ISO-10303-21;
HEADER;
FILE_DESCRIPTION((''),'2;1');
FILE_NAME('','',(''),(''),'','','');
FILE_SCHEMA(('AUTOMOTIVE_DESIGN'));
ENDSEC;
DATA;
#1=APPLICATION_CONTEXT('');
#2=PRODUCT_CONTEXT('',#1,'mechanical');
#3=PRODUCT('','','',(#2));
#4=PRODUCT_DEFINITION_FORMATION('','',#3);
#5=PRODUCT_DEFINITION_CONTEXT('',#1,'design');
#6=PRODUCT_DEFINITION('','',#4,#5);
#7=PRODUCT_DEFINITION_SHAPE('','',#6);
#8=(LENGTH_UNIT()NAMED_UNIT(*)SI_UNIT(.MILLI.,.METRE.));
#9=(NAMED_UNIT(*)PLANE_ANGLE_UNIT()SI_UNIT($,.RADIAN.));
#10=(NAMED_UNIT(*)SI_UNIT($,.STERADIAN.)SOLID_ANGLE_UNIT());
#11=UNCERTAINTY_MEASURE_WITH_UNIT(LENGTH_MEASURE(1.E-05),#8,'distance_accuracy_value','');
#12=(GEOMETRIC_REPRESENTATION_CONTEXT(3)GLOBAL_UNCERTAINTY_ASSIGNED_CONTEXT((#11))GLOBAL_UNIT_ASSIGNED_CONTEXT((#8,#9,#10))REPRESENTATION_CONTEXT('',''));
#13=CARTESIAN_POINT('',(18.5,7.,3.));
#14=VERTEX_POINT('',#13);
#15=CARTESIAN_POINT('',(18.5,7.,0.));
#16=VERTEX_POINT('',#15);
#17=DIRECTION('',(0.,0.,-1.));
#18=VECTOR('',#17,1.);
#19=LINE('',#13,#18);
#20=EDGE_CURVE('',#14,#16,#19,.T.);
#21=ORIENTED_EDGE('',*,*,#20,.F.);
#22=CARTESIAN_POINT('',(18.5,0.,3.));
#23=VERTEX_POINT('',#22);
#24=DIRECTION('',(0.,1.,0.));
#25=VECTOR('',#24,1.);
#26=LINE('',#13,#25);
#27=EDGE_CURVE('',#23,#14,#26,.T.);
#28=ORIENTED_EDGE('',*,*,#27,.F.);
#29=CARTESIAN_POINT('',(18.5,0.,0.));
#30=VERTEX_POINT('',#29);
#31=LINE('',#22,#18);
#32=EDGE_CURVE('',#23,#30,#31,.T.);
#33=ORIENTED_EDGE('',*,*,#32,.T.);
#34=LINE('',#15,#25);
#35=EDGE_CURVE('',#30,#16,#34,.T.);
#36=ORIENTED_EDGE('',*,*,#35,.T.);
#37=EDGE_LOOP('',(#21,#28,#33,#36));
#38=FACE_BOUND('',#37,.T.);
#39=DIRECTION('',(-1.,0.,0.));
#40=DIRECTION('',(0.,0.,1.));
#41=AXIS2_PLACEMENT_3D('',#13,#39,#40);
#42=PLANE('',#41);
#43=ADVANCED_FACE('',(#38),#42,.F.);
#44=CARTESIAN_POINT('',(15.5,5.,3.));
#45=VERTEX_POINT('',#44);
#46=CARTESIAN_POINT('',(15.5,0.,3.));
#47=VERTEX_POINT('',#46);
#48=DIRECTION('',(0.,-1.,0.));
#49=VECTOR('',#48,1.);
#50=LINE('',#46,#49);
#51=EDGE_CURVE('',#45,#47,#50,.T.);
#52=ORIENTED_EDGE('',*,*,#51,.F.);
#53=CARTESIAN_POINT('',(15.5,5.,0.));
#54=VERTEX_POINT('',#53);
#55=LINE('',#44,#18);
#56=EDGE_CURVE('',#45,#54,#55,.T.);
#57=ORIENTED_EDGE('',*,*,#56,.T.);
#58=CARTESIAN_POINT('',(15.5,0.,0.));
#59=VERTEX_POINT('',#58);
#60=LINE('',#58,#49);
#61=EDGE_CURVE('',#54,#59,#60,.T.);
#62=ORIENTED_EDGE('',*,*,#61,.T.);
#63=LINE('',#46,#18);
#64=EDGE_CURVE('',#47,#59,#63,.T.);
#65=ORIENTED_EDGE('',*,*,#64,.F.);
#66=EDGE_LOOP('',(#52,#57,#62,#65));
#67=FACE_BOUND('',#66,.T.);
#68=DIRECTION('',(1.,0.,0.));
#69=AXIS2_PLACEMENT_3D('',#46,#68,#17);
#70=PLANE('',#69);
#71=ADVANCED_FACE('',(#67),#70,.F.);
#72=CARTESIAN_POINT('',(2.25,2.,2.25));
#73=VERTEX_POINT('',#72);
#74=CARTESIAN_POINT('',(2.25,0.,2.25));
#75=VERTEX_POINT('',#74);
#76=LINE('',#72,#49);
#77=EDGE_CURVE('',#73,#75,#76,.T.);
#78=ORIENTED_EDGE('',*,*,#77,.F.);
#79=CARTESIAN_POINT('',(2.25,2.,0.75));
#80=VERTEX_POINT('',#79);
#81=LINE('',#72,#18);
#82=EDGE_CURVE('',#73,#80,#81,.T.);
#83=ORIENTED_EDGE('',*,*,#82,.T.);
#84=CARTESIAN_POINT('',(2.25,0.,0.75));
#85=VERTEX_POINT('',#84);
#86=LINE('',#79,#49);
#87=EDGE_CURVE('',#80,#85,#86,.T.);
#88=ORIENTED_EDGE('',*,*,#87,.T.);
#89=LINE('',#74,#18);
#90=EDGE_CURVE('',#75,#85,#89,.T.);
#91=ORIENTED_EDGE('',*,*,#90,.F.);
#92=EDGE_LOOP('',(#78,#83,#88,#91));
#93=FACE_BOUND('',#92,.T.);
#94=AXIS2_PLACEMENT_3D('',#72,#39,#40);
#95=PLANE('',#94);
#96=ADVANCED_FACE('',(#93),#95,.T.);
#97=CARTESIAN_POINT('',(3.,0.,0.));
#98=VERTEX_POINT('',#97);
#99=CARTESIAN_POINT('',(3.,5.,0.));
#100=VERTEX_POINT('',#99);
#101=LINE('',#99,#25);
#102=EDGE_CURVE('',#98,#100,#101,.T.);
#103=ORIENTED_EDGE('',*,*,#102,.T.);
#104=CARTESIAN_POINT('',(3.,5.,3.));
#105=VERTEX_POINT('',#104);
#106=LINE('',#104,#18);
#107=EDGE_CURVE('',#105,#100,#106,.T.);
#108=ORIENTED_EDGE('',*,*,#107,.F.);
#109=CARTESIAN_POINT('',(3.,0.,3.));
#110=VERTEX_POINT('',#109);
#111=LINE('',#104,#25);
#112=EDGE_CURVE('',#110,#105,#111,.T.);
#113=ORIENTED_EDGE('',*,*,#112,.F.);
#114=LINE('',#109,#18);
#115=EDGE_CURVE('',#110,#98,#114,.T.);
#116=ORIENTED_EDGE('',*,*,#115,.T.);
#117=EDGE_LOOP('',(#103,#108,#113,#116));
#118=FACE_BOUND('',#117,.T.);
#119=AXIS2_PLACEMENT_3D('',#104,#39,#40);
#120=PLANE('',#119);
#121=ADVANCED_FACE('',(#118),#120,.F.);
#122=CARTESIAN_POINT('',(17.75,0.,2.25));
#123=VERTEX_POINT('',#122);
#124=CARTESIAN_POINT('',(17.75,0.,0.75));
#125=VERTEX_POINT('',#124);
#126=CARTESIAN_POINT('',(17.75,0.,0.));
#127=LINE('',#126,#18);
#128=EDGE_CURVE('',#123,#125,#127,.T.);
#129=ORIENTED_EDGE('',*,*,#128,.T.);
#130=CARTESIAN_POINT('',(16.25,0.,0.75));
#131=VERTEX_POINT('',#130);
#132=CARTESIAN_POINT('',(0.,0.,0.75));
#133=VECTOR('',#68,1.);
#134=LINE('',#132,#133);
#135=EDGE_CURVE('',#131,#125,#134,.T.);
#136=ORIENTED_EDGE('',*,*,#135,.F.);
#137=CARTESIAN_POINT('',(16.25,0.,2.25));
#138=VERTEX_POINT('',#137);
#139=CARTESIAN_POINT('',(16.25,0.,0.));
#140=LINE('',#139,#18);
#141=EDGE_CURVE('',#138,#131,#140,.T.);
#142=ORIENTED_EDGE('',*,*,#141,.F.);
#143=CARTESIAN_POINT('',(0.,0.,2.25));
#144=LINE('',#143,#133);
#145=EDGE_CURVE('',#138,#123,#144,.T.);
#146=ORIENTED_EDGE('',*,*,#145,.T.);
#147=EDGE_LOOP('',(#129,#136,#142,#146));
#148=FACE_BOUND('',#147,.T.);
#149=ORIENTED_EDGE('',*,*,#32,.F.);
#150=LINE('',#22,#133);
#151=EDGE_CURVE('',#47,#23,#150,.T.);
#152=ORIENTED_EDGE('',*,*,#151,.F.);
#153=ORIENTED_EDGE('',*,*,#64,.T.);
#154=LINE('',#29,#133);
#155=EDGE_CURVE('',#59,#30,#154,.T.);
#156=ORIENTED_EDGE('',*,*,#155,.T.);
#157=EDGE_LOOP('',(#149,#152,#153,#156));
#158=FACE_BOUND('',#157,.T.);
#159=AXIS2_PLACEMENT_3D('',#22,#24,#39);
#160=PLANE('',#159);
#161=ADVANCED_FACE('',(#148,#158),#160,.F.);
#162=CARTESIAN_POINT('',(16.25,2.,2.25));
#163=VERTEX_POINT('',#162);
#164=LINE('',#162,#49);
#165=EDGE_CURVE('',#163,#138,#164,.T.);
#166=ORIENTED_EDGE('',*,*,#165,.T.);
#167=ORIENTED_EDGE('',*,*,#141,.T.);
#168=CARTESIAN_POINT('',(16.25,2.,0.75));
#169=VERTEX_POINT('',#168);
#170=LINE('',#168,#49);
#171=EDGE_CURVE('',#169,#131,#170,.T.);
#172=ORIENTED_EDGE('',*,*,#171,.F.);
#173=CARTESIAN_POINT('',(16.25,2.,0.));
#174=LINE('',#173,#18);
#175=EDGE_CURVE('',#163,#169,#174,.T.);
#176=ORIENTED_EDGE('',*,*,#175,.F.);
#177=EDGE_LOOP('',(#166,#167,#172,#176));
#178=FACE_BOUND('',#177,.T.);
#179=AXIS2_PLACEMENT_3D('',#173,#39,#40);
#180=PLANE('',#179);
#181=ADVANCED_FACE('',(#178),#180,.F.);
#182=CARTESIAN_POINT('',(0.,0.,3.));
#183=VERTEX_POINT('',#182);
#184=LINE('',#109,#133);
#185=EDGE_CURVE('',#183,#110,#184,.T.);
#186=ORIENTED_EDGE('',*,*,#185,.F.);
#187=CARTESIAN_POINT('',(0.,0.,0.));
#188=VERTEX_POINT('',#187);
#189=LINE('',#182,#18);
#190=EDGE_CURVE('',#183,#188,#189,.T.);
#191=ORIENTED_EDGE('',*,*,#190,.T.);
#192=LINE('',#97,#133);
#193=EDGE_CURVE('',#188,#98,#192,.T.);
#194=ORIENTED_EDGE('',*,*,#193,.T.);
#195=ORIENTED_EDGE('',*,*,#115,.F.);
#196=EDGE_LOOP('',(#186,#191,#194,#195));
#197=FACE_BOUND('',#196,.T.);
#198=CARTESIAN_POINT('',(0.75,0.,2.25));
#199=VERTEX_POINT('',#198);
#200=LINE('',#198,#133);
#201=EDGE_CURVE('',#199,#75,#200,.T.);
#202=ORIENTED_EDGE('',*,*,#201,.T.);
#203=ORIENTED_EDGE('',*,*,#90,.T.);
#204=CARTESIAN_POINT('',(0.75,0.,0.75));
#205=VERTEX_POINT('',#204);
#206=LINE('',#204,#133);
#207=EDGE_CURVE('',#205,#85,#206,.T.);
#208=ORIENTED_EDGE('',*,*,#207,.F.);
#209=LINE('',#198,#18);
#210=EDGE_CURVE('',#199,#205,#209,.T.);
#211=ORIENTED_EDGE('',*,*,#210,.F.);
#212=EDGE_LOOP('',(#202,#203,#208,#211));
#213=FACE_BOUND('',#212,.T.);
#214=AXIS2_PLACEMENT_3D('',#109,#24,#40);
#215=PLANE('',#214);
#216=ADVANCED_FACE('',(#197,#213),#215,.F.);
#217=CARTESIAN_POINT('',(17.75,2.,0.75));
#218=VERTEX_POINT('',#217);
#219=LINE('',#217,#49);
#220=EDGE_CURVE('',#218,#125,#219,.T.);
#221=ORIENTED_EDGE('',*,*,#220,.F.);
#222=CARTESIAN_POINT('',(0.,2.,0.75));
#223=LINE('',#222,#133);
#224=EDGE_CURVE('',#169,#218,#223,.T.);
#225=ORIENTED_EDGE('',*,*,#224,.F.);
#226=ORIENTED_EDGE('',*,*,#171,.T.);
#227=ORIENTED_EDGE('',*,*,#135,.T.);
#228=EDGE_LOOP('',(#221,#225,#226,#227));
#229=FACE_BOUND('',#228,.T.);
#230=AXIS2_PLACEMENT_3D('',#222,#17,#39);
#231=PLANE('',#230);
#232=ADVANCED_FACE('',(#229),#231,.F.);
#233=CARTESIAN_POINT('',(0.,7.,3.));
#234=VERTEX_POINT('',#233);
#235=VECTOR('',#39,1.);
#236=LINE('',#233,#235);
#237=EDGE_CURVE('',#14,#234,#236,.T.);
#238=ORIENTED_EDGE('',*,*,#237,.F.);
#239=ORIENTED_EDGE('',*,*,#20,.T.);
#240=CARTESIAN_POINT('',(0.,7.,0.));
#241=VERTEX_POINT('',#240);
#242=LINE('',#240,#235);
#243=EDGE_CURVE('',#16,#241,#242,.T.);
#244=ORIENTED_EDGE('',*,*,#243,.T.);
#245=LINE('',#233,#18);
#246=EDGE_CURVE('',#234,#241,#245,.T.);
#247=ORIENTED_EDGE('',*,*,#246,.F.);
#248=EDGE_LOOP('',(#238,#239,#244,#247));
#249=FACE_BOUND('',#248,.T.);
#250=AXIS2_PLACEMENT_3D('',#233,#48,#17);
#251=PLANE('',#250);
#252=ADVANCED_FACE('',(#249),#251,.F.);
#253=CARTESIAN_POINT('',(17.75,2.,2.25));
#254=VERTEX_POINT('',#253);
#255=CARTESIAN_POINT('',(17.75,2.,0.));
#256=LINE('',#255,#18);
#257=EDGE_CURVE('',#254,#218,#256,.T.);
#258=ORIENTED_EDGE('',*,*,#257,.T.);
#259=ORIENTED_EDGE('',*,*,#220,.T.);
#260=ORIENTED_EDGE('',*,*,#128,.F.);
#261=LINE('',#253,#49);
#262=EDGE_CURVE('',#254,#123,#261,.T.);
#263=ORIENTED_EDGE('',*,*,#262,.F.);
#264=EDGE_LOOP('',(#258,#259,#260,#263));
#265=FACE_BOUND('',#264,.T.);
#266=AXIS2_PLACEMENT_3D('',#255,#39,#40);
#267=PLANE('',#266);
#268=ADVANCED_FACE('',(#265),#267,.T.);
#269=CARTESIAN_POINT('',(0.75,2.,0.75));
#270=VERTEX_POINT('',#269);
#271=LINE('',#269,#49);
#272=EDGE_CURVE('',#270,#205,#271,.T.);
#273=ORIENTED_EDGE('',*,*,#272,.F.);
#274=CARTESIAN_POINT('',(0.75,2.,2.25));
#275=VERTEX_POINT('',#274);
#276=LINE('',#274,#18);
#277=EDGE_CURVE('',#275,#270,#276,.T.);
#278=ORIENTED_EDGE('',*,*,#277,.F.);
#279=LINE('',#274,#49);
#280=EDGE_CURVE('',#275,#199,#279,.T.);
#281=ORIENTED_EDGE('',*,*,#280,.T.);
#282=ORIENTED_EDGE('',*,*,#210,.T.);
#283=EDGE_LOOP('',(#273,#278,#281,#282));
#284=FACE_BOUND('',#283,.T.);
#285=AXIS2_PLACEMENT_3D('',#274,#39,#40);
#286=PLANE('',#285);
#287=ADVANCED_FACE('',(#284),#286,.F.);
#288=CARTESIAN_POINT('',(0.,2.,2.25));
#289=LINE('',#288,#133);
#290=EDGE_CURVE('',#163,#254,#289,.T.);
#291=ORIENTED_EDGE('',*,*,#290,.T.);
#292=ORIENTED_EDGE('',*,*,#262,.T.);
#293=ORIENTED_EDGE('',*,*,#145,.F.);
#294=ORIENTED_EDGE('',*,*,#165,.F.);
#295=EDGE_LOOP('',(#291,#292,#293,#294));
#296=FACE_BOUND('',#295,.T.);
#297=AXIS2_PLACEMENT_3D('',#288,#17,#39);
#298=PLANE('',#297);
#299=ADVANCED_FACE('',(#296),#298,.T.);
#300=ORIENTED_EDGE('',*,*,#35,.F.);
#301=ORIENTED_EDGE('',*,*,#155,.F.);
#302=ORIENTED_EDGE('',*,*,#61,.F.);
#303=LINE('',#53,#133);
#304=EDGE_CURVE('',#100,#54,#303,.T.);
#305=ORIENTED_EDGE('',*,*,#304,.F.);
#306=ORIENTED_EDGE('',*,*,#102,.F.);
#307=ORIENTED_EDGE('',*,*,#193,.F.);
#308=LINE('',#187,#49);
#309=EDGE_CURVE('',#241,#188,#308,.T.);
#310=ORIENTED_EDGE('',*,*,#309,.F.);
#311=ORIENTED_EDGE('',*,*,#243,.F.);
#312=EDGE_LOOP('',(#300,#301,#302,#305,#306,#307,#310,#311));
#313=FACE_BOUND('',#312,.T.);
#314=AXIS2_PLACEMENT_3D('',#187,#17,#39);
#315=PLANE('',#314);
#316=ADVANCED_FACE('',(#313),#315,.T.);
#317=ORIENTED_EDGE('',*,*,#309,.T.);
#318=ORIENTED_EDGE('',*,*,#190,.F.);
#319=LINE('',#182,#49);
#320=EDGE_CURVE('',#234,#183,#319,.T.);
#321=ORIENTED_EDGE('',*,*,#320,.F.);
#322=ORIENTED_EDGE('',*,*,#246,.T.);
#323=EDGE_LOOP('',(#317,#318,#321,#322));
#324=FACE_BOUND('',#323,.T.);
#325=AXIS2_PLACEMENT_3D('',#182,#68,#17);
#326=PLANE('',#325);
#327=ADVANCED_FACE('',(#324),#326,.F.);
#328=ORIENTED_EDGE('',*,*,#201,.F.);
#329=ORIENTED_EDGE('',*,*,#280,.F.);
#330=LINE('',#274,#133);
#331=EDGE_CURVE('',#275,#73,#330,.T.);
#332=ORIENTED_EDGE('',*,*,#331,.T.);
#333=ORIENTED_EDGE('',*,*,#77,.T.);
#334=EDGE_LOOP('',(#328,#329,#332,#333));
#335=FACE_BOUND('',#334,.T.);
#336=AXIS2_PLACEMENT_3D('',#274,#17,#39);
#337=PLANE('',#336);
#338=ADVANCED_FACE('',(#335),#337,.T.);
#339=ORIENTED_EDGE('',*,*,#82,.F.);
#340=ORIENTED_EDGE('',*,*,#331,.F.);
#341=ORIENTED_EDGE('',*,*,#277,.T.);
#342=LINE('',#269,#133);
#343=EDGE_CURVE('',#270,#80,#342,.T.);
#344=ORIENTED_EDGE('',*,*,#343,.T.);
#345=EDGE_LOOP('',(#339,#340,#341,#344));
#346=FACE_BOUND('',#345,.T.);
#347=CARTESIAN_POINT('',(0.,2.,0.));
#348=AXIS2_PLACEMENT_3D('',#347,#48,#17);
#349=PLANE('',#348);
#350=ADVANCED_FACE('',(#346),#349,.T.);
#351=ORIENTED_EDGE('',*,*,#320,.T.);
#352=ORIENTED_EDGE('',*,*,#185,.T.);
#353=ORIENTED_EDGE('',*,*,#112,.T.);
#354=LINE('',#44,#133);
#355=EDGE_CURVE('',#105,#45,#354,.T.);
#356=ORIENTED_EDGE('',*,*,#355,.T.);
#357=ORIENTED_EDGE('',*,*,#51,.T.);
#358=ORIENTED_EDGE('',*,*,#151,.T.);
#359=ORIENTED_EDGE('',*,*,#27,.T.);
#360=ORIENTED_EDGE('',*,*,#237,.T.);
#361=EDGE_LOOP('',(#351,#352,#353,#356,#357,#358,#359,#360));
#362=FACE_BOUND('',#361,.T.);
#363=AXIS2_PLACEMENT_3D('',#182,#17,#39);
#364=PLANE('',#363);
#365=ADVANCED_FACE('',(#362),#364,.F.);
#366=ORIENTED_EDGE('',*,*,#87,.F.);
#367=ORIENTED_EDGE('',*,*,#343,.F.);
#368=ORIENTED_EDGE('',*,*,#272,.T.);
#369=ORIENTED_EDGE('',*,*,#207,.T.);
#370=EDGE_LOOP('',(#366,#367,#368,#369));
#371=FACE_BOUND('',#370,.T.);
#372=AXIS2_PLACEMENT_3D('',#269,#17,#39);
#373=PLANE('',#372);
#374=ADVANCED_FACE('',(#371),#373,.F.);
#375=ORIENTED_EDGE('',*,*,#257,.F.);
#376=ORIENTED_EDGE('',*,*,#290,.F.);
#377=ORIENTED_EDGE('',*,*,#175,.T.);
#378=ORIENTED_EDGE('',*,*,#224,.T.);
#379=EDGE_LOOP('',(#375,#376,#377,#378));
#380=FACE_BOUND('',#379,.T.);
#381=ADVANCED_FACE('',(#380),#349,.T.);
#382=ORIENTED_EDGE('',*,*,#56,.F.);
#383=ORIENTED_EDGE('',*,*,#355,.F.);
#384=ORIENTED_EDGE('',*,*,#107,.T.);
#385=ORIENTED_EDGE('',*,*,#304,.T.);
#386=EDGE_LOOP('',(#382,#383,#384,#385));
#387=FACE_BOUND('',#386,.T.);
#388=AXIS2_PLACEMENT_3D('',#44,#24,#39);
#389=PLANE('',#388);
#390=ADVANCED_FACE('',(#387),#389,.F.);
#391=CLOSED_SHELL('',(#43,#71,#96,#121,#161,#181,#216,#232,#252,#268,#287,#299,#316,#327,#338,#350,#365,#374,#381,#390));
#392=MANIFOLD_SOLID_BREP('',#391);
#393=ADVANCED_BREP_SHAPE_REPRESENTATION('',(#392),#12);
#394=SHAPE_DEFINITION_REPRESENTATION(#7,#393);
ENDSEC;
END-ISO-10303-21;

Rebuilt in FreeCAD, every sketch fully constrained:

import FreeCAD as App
import Part
import Sketcher
Q = App.Units.Quantity


def add_polygon(sketch, points):
    """Adds a closed chain of lines whose ends are joined by coincident constraints."""
    first, n = sketch.GeometryCount, len(points)
    for a, b in zip(points, points[1:] + points[:1]):
        sketch.addGeometry(Part.LineSegment(App.Vector(*a, 0), App.Vector(*b, 0)), False)
    for i in range(n):
        sketch.addConstraint(Sketcher.Constraint("Coincident", first + i, 2, first + (i + 1) % n, 1))

doc = App.newDocument("Part")
body = doc.addObject("PartDesign::Body", "Body")

# Sketch on XY plane
sketch1 = body.newObject("Sketcher::SketchObject", "Sketch")
sketch1.AttachmentSupport = (doc.getObject("XY_Plane"), [""])
sketch1.MapMode = "FlatFace"
add_polygon(sketch1, [(0, 7), (0, 0), (3, 0), (3, 5), (15.5, 5), (15.5, 0), (18.5, 0), (18.5, 7)])  # lines 0-7
sketch1.addConstraint(Sketcher.Constraint("Vertical", 0))
sketch1.addConstraint(Sketcher.Constraint("Horizontal", 1))
sketch1.addConstraint(Sketcher.Constraint("Vertical", 2))
sketch1.addConstraint(Sketcher.Constraint("Horizontal", 3))
sketch1.addConstraint(Sketcher.Constraint("Vertical", 4))
sketch1.addConstraint(Sketcher.Constraint("Horizontal", 5))
sketch1.addConstraint(Sketcher.Constraint("Vertical", 6))
sketch1.addConstraint(Sketcher.Constraint("Horizontal", 7))
sketch1.addConstraint(Sketcher.Constraint("Coincident", 0, 2, -1, 1))
sketch1.addConstraint(Sketcher.Constraint("PointOnObject", 4, 2, -1))
sketch1.addConstraint(Sketcher.Constraint("Equal", 1, 5))
sketch1.addConstraint(Sketcher.Constraint("DistanceX", 1, 1, 1, 2, Q("3 mm")))
sketch1.addConstraint(Sketcher.Constraint("DistanceY", 0, 2, 0, 1, Q("7 mm")))
sketch1.addConstraint(Sketcher.Constraint("DistanceY", 2, 1, 2, 2, Q("5 mm")))
sketch1.addConstraint(Sketcher.Constraint("DistanceX", 3, 1, 3, 2, Q("12.5 mm")))
pad1 = body.newObject("PartDesign::Pad", "Pad")
pad1.Profile = sketch1
pad1.Length = 3

# Sketch on XZ plane
sketch2 = body.newObject("Sketcher::SketchObject", "Sketch001")
sketch2.AttachmentSupport = (doc.getObject("XZ_Plane"), [""])
sketch2.MapMode = "FlatFace"
add_polygon(sketch2, [(16.25, 2.25), (16.25, 0.75), (17.75, 0.75), (17.75, 2.25)])  # lines 0-3
add_polygon(sketch2, [(0.75, 2.25), (0.75, 0.75), (2.25, 0.75), (2.25, 2.25)])  # lines 4-7
sketch2.addConstraint(Sketcher.Constraint("Vertical", 0))
sketch2.addConstraint(Sketcher.Constraint("Horizontal", 1))
sketch2.addConstraint(Sketcher.Constraint("Vertical", 2))
sketch2.addConstraint(Sketcher.Constraint("Horizontal", 3))
sketch2.addConstraint(Sketcher.Constraint("Vertical", 4))
sketch2.addConstraint(Sketcher.Constraint("Horizontal", 5))
sketch2.addConstraint(Sketcher.Constraint("Vertical", 6))
sketch2.addConstraint(Sketcher.Constraint("Horizontal", 7))
sketch2.addConstraint(Sketcher.Constraint("Horizontal", 1, 2, 4, 2))
sketch2.addConstraint(Sketcher.Constraint("Horizontal", 3, 2, 6, 2))
sketch2.addConstraint(Sketcher.Constraint("Equal", 3, 5))
sketch2.addConstraint(Sketcher.Constraint("Equal", 7, 0))
sketch2.addConstraint(Sketcher.Constraint("DistanceX", 1, 1, 1, 2, Q("1.5 mm")))
sketch2.addConstraint(Sketcher.Constraint("DistanceX", 4, 2, 1, 2, Q("17 mm")))
sketch2.addConstraint(Sketcher.Constraint("DistanceX", -1, 1, 0, 2, Q("16.25 mm")))
sketch2.addConstraint(Sketcher.Constraint("DistanceY", -1, 1, 0, 2, Q("0.75 mm")))
pocket1 = body.newObject("PartDesign::Pocket", "Pocket")
pocket1.Profile = sketch2
pocket1.Length = 2

doc.recompute()
